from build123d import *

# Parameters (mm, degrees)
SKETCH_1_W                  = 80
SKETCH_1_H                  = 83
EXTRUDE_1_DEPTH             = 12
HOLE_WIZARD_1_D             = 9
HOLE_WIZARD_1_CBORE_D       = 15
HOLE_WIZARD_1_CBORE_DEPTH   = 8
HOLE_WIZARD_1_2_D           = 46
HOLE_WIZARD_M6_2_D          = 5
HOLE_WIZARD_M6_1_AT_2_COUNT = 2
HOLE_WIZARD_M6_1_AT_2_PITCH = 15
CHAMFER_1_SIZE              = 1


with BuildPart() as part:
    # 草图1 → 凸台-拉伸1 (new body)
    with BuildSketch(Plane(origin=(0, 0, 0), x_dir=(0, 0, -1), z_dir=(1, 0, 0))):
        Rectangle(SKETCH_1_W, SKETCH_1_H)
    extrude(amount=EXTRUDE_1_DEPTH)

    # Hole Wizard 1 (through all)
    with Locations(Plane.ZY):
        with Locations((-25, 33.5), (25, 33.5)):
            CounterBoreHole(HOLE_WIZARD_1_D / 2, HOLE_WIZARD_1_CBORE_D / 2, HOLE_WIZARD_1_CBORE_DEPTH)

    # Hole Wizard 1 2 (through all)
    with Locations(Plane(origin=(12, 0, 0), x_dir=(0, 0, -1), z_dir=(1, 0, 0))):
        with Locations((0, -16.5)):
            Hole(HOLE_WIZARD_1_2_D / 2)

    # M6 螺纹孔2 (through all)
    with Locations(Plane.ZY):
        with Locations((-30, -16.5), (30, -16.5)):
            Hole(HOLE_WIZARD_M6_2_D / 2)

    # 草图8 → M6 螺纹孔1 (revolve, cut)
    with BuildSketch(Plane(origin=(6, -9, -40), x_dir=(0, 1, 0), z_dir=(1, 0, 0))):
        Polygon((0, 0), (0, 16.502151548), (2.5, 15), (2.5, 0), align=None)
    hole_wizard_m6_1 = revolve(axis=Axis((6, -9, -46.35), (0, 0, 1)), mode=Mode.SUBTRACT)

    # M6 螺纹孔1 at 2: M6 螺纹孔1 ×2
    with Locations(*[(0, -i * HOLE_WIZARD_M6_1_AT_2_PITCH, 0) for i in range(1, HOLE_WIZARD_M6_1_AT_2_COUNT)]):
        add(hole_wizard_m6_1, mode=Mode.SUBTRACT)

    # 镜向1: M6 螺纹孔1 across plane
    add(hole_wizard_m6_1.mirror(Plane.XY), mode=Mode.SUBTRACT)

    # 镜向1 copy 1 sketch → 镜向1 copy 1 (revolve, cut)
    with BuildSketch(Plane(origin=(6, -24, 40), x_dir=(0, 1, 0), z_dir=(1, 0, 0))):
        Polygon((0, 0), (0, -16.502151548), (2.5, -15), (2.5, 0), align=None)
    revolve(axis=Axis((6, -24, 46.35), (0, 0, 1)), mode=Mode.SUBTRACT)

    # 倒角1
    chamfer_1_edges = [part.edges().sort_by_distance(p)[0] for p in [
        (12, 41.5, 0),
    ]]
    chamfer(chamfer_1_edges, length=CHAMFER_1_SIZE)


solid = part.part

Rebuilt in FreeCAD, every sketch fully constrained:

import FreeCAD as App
import Part
import Sketcher

V = App.Vector
Q = App.Units.Quantity


def edges_at(feature, points):
    """Names of the edges that pass closest to the given points."""
    edges = feature.Shape.Edges
    near = lambda p: min(range(len(edges)), key=lambda i: edges[i].distToShape(Part.Vertex(*p))[0])
    return sorted({f"Edge{near(p) + 1}" for p in points})

doc = App.newDocument("Part")
body = doc.addObject("PartDesign::Body", "Body")

sketch1 = body.newObject("Sketcher::SketchObject", "Sketch")
sketch1.AttachmentSupport = (doc.getObject("YZ_Plane"), [""])
sketch1.MapMode = "FlatFace"
sketch1.addGeometry([
    Part.LineSegment(V(41.5, 40, 0), V(-41.5, 40, 0)),
    Part.LineSegment(V(-41.5, 40, 0), V(-41.5, -40, 0)),
    Part.LineSegment(V(-41.5, -40, 0), V(41.5, -40, 0)),
    Part.LineSegment(V(41.5, -40, 0), V(41.5, 40, 0)),
], False)
sketch1.addConstraint([
    Sketcher.Constraint("Coincident", 0, 2, 1, 1),
    Sketcher.Constraint("Coincident", 1, 2, 2, 1),
    Sketcher.Constraint("Coincident", 2, 2, 3, 1),
    Sketcher.Constraint("Coincident", 3, 2, 0, 1),
    Sketcher.Constraint("Horizontal", 0),
    Sketcher.Constraint("Vertical", 1),
    Sketcher.Constraint("Horizontal", 2),
    Sketcher.Constraint("Vertical", 3),
    Sketcher.Constraint("Symmetric", 0, 2, 2, 2, -1, 1),
    Sketcher.Constraint("DistanceX", 0, 2, 0, 1, 83.0),
    Sketcher.Constraint("DistanceY", 1, 2, 1, 1, 80.0),
])
pad1 = body.newObject("PartDesign::Pad", "Pad")
pad1.Profile = sketch1
pad1.Length = 12

sketch2 = body.newObject("Sketcher::SketchObject", "Sketch001")
sketch2.AttachmentSupport = (doc.getObject("YZ_Plane"), [""])
sketch2.MapMode = "FlatFace"
sketch2.addGeometry([
    Part.Circle(V(33.5, -25, 0), V(0, 0, 1), 4.5),
    Part.Circle(V(33.5, 25, 0), V(0, 0, 1), 4.5),
], False)
sketch2.addConstraint([
    Sketcher.Constraint("Equal", 0, 1),
    Sketcher.Constraint("Symmetric", 0, 3, 1, 3, -1),
    Sketcher.Constraint("Diameter", 0, 9.0),
    Sketcher.Constraint("DistanceY", 0, 3, -1, 1, 25.0),
    Sketcher.Constraint("DistanceX", -1, 1, 0, 3, 33.5),
])
doc.recompute()
hole = body.newObject("PartDesign::Hole", "Hole")
hole.Profile = sketch2
hole.ThreadType = "None"
hole.Diameter = 9
hole.DepthType = "ThroughAll"
hole.HoleCutType = "Counterbore"
hole.HoleCutDiameter = 15
hole.HoleCutDepth = 8
hole.Reversed = True

sketch3 = body.newObject("Sketcher::SketchObject", "Sketch002")
sketch3.AttachmentSupport = (doc.getObject("YZ_Plane"), [""])
sketch3.MapMode = "FlatFace"
sketch3.AttachmentOffset = App.Placement(V(0, 0, 12), App.Rotation())
sketch3.addGeometry(Part.Circle(V(-16.5, 0, 0), V(0, 0, 1), 23), False)
sketch3.addConstraint([
    Sketcher.Constraint("PointOnObject", 0, 3, -1),
    Sketcher.Constraint("Diameter", 0, 46.0),
    Sketcher.Constraint("DistanceX", 0, 3, -1, 1, 16.5),
])
doc.recompute()
hole2 = body.newObject("PartDesign::Hole", "Hole001")
hole2.Profile = sketch3
hole2.ThreadType = "None"
hole2.Diameter = 46
hole2.DepthType = "ThroughAll"

sketch4 = body.newObject("Sketcher::SketchObject", "Sketch003")
sketch4.AttachmentSupport = (doc.getObject("YZ_Plane"), [""])
sketch4.MapMode = "FlatFace"
sketch4.addGeometry([
    Part.Circle(V(-16.5, -30, 0), V(0, 0, 1), 2.5),
    Part.Circle(V(-16.5, 30, 0), V(0, 0, 1), 2.5),
], False)
sketch4.addConstraint([
    Sketcher.Constraint("Equal", 0, 1),
    Sketcher.Constraint("Symmetric", 0, 3, 1, 3, -1),
    Sketcher.Constraint("Diameter", 0, 5.0),
    Sketcher.Constraint("DistanceY", 0, 3, -1, 1, 30.0),
    Sketcher.Constraint("DistanceX", 0, 3, -1, 1, 16.5),
])
doc.recompute()
hole3 = body.newObject("PartDesign::Hole", "Hole002")
hole3.Profile = sketch4
hole3.ThreadType = "None"
hole3.Diameter = 5
hole3.DepthType = "ThroughAll"
hole3.Reversed = True

sketch5 = body.newObject("Sketcher::SketchObject", "Sketch004")
sketch5.AttachmentSupport = (doc.getObject("YZ_Plane"), [""])
sketch5.MapMode = "FlatFace"
sketch5.AttachmentOffset = App.Placement(V(0, 0, 6), App.Rotation())
sketch5.addGeometry([
    Part.LineSegment(V(-9, -23.497848, 0), V(-9, -40, 0)),
    Part.LineSegment(V(-9, -40, 0), V(-6.5, -40, 0)),
    Part.LineSegment(V(-6.5, -40, 0), V(-6.5, -25, 0)),
    Part.LineSegment(V(-6.5, -25, 0), V(-9, -23.497848, 0)),
], False)
sketch5.addGeometry(Part.LineSegment(V(-9, -40, 0), V(-9, -23.497848, 0)), True)
sketch5.addConstraint([
    Sketcher.Constraint("Coincident", 0, 2, 1, 1),
    Sketcher.Constraint("Coincident", 1, 2, 2, 1),
    Sketcher.Constraint("Coincident", 2, 2, 3, 1),
    Sketcher.Constraint("Coincident", 3, 2, 0, 1),
    Sketcher.Constraint("Vertical", 0),
    Sketcher.Constraint("Horizontal", 1),
    Sketcher.Constraint("Vertical", 2),
    Sketcher.Constraint("Vertical", 4),
    Sketcher.Constraint("Coincident", 4, 1, 0, 2),
    Sketcher.Constraint("Equal", 0, 4),
    Sketcher.Constraint("DistanceY", 2, 1, 2, 2, 15.0),
    Sketcher.Constraint("Angle", 3, Q("149 deg")),
    Sketcher.Constraint("DistanceX", 1, 1, 1, 2, 2.5),
    Sketcher.Constraint("DistanceX", 0, 2, -1, 1, 9.0),
    Sketcher.Constraint("DistanceY", 0, 2, -1, 1, 40.0),
])
groove = body.newObject("PartDesign::Groove", "Groove")
groove.Profile = sketch5
groove.ReferenceAxis = (sketch5, ["Axis0"])
groove.Angle = 360
doc.recompute()

linearpattern = body.newObject("PartDesign::LinearPattern", "LinearPattern")
linearpattern.Originals = [groove]
linearpattern.Direction = (doc.getObject("Y_Axis"), [""])
linearpattern.Mode = "offset"
linearpattern.Offset = 15
linearpattern.Occurrences = 2
linearpattern.Reversed = True
body.Tip = linearpattern
doc.recompute()

mirrored = body.newObject("PartDesign::Mirrored", "Mirrored")
mirrored.Originals = [groove]
mirrored.MirrorPlane = (doc.getObject("XY_Plane"), [""])
body.Tip = mirrored

sketch6 = body.newObject("Sketcher::SketchObject", "Sketch005")
sketch6.AttachmentSupport = (doc.getObject("YZ_Plane"), [""])
sketch6.MapMode = "FlatFace"
sketch6.AttachmentOffset = App.Placement(V(0, 0, 6), App.Rotation())
sketch6.addGeometry([
    Part.LineSegment(V(-24, 40, 0), V(-24, 23.497848, 0)),
    Part.LineSegment(V(-24, 23.497848, 0), V(-21.5, 25, 0)),
    Part.LineSegment(V(-21.5, 25, 0), V(-21.5, 40, 0)),
    Part.LineSegment(V(-21.5, 40, 0), V(-24, 40, 0)),
], False)
sketch6.addGeometry(Part.LineSegment(V(-24, 23.497848, 0), V(-24, 40, 0)), True)
sketch6.addConstraint([
    Sketcher.Constraint("Coincident", 0, 2, 1, 1),
    Sketcher.Constraint("Coincident", 1, 2, 2, 1),
    Sketcher.Constraint("Coincident", 2, 2, 3, 1),
    Sketcher.Constraint("Coincident", 3, 2, 0, 1),
    Sketcher.Constraint("Vertical", 0),
    Sketcher.Constraint("Vertical", 2),
    Sketcher.Constraint("Horizontal", 3),
    Sketcher.Constraint("Vertical", 4),
    Sketcher.Constraint("Coincident", 4, 1, 0, 2),
    Sketcher.Constraint("Horizontal", 2, 2, 4, 2),
    Sketcher.Constraint("DistanceY", 2, 1, 2, 2, 15.0),
    Sketcher.Constraint("Angle", 1, Q("31 deg")),
    Sketcher.Constraint("DistanceX", 3, 2, 3, 1, 2.5),
    Sketcher.Constraint("DistanceX", 0, 2, -1, 1, 24.0),
    Sketcher.Constraint("DistanceY", -1, 1, 1, 2, 25.0),
])
groove2 = body.newObject("PartDesign::Groove", "Groove001")
groove2.Profile = sketch6
groove2.ReferenceAxis = (sketch6, ["Axis0"])
groove2.Angle = 360
doc.recompute()

chamfer = body.newObject("PartDesign::Chamfer", "Chamfer")
chamfer.Base = (groove2, edges_at(groove2, [(12, 41.5, 0)]))
chamfer.Size = 1

doc.recompute()
